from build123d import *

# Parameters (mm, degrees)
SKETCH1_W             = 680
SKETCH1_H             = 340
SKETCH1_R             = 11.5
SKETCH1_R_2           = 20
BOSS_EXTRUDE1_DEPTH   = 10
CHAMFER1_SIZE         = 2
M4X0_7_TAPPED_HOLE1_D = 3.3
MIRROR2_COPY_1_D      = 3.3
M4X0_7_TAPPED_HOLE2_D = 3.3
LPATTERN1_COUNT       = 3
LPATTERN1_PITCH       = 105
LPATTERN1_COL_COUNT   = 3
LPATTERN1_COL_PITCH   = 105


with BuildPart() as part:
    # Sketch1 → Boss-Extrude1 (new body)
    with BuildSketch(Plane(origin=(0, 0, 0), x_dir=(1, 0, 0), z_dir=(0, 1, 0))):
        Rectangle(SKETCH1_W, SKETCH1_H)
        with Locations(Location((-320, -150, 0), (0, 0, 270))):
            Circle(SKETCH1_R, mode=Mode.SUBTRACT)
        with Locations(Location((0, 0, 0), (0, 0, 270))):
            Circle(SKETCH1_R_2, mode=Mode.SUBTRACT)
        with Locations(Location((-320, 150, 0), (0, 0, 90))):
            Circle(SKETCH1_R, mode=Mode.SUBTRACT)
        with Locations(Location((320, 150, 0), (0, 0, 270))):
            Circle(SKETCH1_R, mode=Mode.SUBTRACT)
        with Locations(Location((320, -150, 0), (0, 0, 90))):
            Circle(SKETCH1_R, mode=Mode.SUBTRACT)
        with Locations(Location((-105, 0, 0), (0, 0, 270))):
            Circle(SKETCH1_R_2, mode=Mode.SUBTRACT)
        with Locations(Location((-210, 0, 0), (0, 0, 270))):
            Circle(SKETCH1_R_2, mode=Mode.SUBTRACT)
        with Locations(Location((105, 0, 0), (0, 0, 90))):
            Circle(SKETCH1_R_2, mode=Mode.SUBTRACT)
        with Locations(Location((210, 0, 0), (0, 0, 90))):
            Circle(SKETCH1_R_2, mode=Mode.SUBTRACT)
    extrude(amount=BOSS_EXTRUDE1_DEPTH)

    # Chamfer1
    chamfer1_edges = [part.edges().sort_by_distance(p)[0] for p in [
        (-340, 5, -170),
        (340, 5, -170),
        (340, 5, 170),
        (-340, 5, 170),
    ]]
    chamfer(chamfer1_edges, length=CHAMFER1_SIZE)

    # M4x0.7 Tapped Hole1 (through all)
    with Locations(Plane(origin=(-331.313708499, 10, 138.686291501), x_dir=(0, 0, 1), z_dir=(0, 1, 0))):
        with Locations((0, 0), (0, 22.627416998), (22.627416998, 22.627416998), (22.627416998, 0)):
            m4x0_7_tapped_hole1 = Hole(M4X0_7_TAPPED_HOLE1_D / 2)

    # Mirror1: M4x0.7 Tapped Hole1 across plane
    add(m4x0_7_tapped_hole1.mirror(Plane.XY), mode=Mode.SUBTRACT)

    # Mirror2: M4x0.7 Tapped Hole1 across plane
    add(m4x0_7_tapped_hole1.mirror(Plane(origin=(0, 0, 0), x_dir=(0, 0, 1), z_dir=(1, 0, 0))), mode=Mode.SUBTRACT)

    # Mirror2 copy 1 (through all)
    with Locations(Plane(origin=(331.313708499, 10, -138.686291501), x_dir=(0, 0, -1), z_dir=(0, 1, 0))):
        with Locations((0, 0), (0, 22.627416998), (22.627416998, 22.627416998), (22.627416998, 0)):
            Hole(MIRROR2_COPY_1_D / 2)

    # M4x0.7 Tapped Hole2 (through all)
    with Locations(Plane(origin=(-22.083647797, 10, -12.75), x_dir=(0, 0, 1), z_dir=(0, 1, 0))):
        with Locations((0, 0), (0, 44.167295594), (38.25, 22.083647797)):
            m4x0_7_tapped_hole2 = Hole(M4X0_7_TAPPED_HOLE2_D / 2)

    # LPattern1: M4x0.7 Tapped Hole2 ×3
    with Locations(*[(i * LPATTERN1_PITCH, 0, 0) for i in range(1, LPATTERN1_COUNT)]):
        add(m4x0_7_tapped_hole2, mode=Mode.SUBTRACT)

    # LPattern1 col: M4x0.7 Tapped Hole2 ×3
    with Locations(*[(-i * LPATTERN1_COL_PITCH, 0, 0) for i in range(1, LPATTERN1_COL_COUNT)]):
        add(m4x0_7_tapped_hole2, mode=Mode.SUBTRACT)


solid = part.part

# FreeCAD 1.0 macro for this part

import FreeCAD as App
import Part
import Sketcher
Q = App.Units.Quantity


def edges_at(feature, points):
    """Names of the edges that pass closest to the given points."""
    edges = feature.Shape.Edges
    near = lambda p: min(range(len(edges)), key=lambda i: edges[i].distToShape(Part.Vertex(*p))[0])
    return sorted({f"Edge{near(p) + 1}" for p in points})


def add_polygon(sketch, points):
    """Adds a closed chain of lines whose ends are joined by coincident constraints."""
    first, n = sketch.GeometryCount, len(points)
    for a, b in zip(points, points[1:] + points[:1]):
        sketch.addGeometry(Part.LineSegment(App.Vector(*a, 0), App.Vector(*b, 0)), False)
    for i in range(n):
        sketch.addConstraint(Sketcher.Constraint("Coincident", first + i, 2, first + (i + 1) % n, 1))

doc = App.newDocument("Part")
body = doc.addObject("PartDesign::Body", "Body")

# Sketch on XZ plane
sketch1 = body.newObject("Sketcher::SketchObject", "Sketch")
sketch1.AttachmentSupport = (doc.getObject("XZ_Plane"), [""])
sketch1.MapMode = "FlatFace"
add_polygon(sketch1, [(-340, -170), (-340, 170), (340, 170), (340, -170)])  # lines 0-3
sketch1.addGeometry(Part.Circle(App.Vector(-320, 150, 0), App.Vector(0, 0, 1), 12), False)  # 4
sketch1.addGeometry(Part.Circle(App.Vector(320, 150, 0), App.Vector(0, 0, 1), 12), False)  # 5
sketch1.addGeometry(Part.Circle(App.Vector(-210, 0, 0), App.Vector(0, 0, 1), 20), False)  # 6
sketch1.addGeometry(Part.Circle(App.Vector(-105, 0, 0), App.Vector(0, 0, 1), 20), False)  # 7
sketch1.addGeometry(Part.Circle(App.Vector(-320, -150, 0), App.Vector(0, 0, 1), 12), False)  # 8
sketch1.addGeometry(Part.Circle(App.Vector(0, 0, 0), App.Vector(0, 0, 1), 20), False)  # 9
sketch1.addGeometry(Part.Circle(App.Vector(105, 0, 0), App.Vector(0, 0, 1), 20), False)  # 10
sketch1.addGeometry(Part.Circle(App.Vector(210, 0, 0), App.Vector(0, 0, 1), 20), False)  # 11
sketch1.addGeometry(Part.Circle(App.Vector(320, -150, 0), App.Vector(0, 0, 1), 12), False)  # 12
sketch1.addConstraint(Sketcher.Constraint("Vertical", 0))
sketch1.addConstraint(Sketcher.Constraint("Horizontal", 1))
sketch1.addConstraint(Sketcher.Constraint("Vertical", 2))
sketch1.addConstraint(Sketcher.Constraint("Horizontal", 3))
sketch1.addConstraint(Sketcher.Constraint("Coincident", 9, 3, -1, 1))
sketch1.addConstraint(Sketcher.Constraint("Equal", 4, 5))
sketch1.addConstraint(Sketcher.Constraint("Equal", 6, 7))
sketch1.addConstraint(Sketcher.Constraint("Equal", 5, 8))
sketch1.addConstraint(Sketcher.Constraint("Equal", 7, 9))
sketch1.addConstraint(Sketcher.Constraint("Equal", 9, 10))
sketch1.addConstraint(Sketcher.Constraint("Equal", 10, 11))
sketch1.addConstraint(Sketcher.Constraint("Equal", 8, 12))
sketch1.addConstraint(Sketcher.Constraint("Symmetric", 5, 3, 8, 3, -1, 1))
sketch1.addConstraint(Sketcher.Constraint("Symmetric", 7, 3, 10, 3, -1, 1))
sketch1.addConstraint(Sketcher.Constraint("Symmetric", 6, 3, 11, 3, -1, 1))
sketch1.addConstraint(Sketcher.Constraint("Symmetric", 4, 3, 12, 3, -1, 1))
sketch1.addConstraint(Sketcher.Constraint("Symmetric", 0, 2, 2, 2, -1, 1))
sketch1.addConstraint(Sketcher.Constraint("Symmetric", 4, 3, 5, 3, -2))
sketch1.addConstraint(Sketcher.Constraint("PointOnObject", 6, 3, -1))
sketch1.addConstraint(Sketcher.Constraint("PointOnObject", 7, 3, -1))
sketch1.addConstraint(Sketcher.Constraint("Diameter", 4, Q("23 mm")))
sketch1.addConstraint(Sketcher.Constraint("Diameter", 6, Q("40 mm")))
sketch1.addConstraint(Sketcher.Constraint("DistanceX", 1, 1, 1, 2, Q("680 mm")))
sketch1.addConstraint(Sketcher.Constraint("DistanceY", 0, 1, 0, 2, Q("340 mm")))
sketch1.addConstraint(Sketcher.Constraint("DistanceX", 4, 3, -1, 1, Q("320 mm")))
sketch1.addConstraint(Sketcher.Constraint("DistanceY", -1, 1, 4, 3, Q("150 mm")))
sketch1.addConstraint(Sketcher.Constraint("DistanceX", 6, 3, -1, 1, Q("210 mm")))
sketch1.addConstraint(Sketcher.Constraint("DistanceX", 7, 3, -1, 1, Q("105 mm")))
pad1 = body.newObject("PartDesign::Pad", "Pad")
pad1.Profile = sketch1
pad1.Length = 10
pad1.Reversed = True
doc.recompute()

chamfer = body.newObject("PartDesign::Chamfer", "Chamfer")
chamfer.Base = (pad1, edges_at(pad1, [
    (-340, 5, -170),
    (340, 5, -170),
    (340, 5, 170),
    (-340, 5, 170),
]))
chamfer.Size = 2

# Sketch on XZ plane
sketch2 = body.newObject("Sketcher::SketchObject", "Sketch001")
sketch2.AttachmentSupport = (doc.getObject("XZ_Plane"), [""])
sketch2.MapMode = "FlatFace"
sketch2.AttachmentOffset = App.Placement(App.Vector(0, 0, -10), App.Rotation())
sketch2.addGeometry(Part.Circle(App.Vector(-331.3, 138.7, 0), App.Vector(0, 0, 1), 1.6), False)
sketch2.addGeometry(Part.Circle(App.Vector(-308.7, 138.7, 0), App.Vector(0, 0, 1), 1.6), False)
sketch2.addGeometry(Part.Circle(App.Vector(-308.7, 161.3, 0), App.Vector(0, 0, 1), 1.6), False)
sketch2.addGeometry(Part.Circle(App.Vector(-331.3, 161.3, 0), App.Vector(0, 0, 1), 1.6), False)
sketch2.addConstraint(Sketcher.Constraint("Equal", 0, 1))
sketch2.addConstraint(Sketcher.Constraint("Equal", 1, 2))
sketch2.addConstraint(Sketcher.Constraint("Equal", 2, 3))
sketch2.addConstraint(Sketcher.Constraint("Horizontal", 0, 3, 1, 3))
sketch2.addConstraint(Sketcher.Constraint("Horizontal", 2, 3, 3, 3))
sketch2.addConstraint(Sketcher.Constraint("Vertical", 1, 3, 2, 3))
sketch2.addConstraint(Sketcher.Constraint("Vertical", 0, 3, 3, 3))
sketch2.addConstraint(Sketcher.Constraint("Diameter", 0, Q("3.3 mm")))
sketch2.addConstraint(Sketcher.Constraint("DistanceX", 0, 3, -1, 1, Q("331.313708 mm")))
sketch2.addConstraint(Sketcher.Constraint("DistanceY", -1, 1, 0, 3, Q("138.686292 mm")))
sketch2.addConstraint(Sketcher.Constraint("DistanceX", 1, 3, -1, 1, Q("308.686292 mm")))
sketch2.addConstraint(Sketcher.Constraint("DistanceY", -1, 1, 2, 3, Q("161.313708 mm")))
doc.recompute()
hole = body.newObject("PartDesign::Hole", "Hole")
hole.Profile = sketch2
hole.ThreadType = "None"
hole.Diameter = 3.3
hole.DepthType = "ThroughAll"
hole.Reversed = True
doc.recompute()

mirrored = body.newObject("PartDesign::Mirrored", "Mirrored")
mirrored.Originals = [hole]
mirrored.MirrorPlane = (doc.getObject("XY_Plane"), [""])
body.Tip = mirrored
doc.recompute()

mirrored2 = body.newObject("PartDesign::Mirrored", "Mirrored001")
mirrored2.Originals = [hole]
mirrored2.MirrorPlane = (doc.getObject("YZ_Plane"), [""])
body.Tip = mirrored2

# Sketch on XZ plane
sketch3 = body.newObject("Sketcher::SketchObject", "Sketch002")
sketch3.AttachmentSupport = (doc.getObject("XZ_Plane"), [""])
sketch3.MapMode = "FlatFace"
sketch3.AttachmentOffset = App.Placement(App.Vector(0, 0, -10), App.Rotation())
sketch3.addGeometry(Part.Circle(App.Vector(331.3, -138.7, 0), App.Vector(0, 0, 1), 1.6), False)
sketch3.addGeometry(Part.Circle(App.Vector(308.7, -138.7, 0), App.Vector(0, 0, 1), 1.6), False)
sketch3.addGeometry(Part.Circle(App.Vector(308.7, -161.3, 0), App.Vector(0, 0, 1), 1.6), False)
sketch3.addGeometry(Part.Circle(App.Vector(331.3, -161.3, 0), App.Vector(0, 0, 1), 1.6), False)
sketch3.addConstraint(Sketcher.Constraint("Equal", 0, 1))
sketch3.addConstraint(Sketcher.Constraint("Equal", 1, 2))
sketch3.addConstraint(Sketcher.Constraint("Equal", 2, 3))
sketch3.addConstraint(Sketcher.Constraint("Horizontal", 0, 3, 1, 3))
sketch3.addConstraint(Sketcher.Constraint("Horizontal", 2, 3, 3, 3))
sketch3.addConstraint(Sketcher.Constraint("Vertical", 1, 3, 2, 3))
sketch3.addConstraint(Sketcher.Constraint("Vertical", 0, 3, 3, 3))
sketch3.addConstraint(Sketcher.Constraint("Diameter", 0, Q("3.3 mm")))
sketch3.addConstraint(Sketcher.Constraint("DistanceX", -1, 1, 0, 3, Q("331.313708 mm")))
sketch3.addConstraint(Sketcher.Constraint("DistanceY", 0, 3, -1, 1, Q("138.686292 mm")))
sketch3.addConstraint(Sketcher.Constraint("DistanceX", -1, 1, 1, 3, Q("308.686292 mm")))
sketch3.addConstraint(Sketcher.Constraint("DistanceY", 2, 3, -1, 1, Q("161.313708 mm")))
doc.recompute()
hole2 = body.newObject("PartDesign::Hole", "Hole001")
hole2.Profile = sketch3
hole2.ThreadType = "None"
hole2.Diameter = 3.3
hole2.DepthType = "ThroughAll"
hole2.Reversed = True

# Sketch on XZ plane
sketch4 = body.newObject("Sketcher::SketchObject", "Sketch003")
sketch4.AttachmentSupport = (doc.getObject("XZ_Plane"), [""])
sketch4.MapMode = "FlatFace"
sketch4.AttachmentOffset = App.Placement(App.Vector(0, 0, -10), App.Rotation())
sketch4.addGeometry(Part.Circle(App.Vector(-22.1, -12.8, 0), App.Vector(0, 0, 1), 1.6), False)
sketch4.addGeometry(Part.Circle(App.Vector(22.1, -12.8, 0), App.Vector(0, 0, 1), 1.6), False)
sketch4.addGeometry(Part.Circle(App.Vector(0, 25.5, 0), App.Vector(0, 0, 1), 1.6), False)
sketch4.addConstraint(Sketcher.Constraint("Equal", 0, 1))
sketch4.addConstraint(Sketcher.Constraint("Equal", 1, 2))
sketch4.addConstraint(Sketcher.Constraint("Symmetric", 0, 3, 1, 3, -2))
sketch4.addConstraint(Sketcher.Constraint("PointOnObject", 2, 3, -2))
sketch4.addConstraint(Sketcher.Constraint("Diameter", 0, Q("3.3 mm")))
sketch4.addConstraint(Sketcher.Constraint("DistanceY", -1, 1, 2, 3, Q("25.5 mm")))
sketch4.addConstraint(Sketcher.Constraint("DistanceY", 0, 3, -1, 1, Q("12.75 mm")))
sketch4.addConstraint(Sketcher.Constraint("DistanceX", 0, 3, -1, 1, Q("22.083648 mm")))
doc.recompute()
hole3 = body.newObject("PartDesign::Hole", "Hole002")
hole3.Profile = sketch4
hole3.ThreadType = "None"
hole3.Diameter = 3.3
hole3.DepthType = "ThroughAll"
hole3.Reversed = True
doc.recompute()

linearpattern = body.newObject("PartDesign::LinearPattern", "LinearPattern")
linearpattern.Originals = [hole3]
linearpattern.Direction = (doc.getObject("X_Axis"), [""])
linearpattern.Mode = "offset"
linearpattern.Offset = 105
linearpattern.Occurrences = 3
body.Tip = linearpattern
doc.recompute()

linearpattern2 = body.newObject("PartDesign::LinearPattern", "LinearPattern001")
linearpattern2.Originals = [hole3]
linearpattern2.Direction = (doc.getObject("X_Axis"), [""])
linearpattern2.Mode = "offset"
linearpattern2.Offset = 105
linearpattern2.Occurrences = 3
linearpattern2.Reversed = True
body.Tip = linearpattern2

doc.recompute()
